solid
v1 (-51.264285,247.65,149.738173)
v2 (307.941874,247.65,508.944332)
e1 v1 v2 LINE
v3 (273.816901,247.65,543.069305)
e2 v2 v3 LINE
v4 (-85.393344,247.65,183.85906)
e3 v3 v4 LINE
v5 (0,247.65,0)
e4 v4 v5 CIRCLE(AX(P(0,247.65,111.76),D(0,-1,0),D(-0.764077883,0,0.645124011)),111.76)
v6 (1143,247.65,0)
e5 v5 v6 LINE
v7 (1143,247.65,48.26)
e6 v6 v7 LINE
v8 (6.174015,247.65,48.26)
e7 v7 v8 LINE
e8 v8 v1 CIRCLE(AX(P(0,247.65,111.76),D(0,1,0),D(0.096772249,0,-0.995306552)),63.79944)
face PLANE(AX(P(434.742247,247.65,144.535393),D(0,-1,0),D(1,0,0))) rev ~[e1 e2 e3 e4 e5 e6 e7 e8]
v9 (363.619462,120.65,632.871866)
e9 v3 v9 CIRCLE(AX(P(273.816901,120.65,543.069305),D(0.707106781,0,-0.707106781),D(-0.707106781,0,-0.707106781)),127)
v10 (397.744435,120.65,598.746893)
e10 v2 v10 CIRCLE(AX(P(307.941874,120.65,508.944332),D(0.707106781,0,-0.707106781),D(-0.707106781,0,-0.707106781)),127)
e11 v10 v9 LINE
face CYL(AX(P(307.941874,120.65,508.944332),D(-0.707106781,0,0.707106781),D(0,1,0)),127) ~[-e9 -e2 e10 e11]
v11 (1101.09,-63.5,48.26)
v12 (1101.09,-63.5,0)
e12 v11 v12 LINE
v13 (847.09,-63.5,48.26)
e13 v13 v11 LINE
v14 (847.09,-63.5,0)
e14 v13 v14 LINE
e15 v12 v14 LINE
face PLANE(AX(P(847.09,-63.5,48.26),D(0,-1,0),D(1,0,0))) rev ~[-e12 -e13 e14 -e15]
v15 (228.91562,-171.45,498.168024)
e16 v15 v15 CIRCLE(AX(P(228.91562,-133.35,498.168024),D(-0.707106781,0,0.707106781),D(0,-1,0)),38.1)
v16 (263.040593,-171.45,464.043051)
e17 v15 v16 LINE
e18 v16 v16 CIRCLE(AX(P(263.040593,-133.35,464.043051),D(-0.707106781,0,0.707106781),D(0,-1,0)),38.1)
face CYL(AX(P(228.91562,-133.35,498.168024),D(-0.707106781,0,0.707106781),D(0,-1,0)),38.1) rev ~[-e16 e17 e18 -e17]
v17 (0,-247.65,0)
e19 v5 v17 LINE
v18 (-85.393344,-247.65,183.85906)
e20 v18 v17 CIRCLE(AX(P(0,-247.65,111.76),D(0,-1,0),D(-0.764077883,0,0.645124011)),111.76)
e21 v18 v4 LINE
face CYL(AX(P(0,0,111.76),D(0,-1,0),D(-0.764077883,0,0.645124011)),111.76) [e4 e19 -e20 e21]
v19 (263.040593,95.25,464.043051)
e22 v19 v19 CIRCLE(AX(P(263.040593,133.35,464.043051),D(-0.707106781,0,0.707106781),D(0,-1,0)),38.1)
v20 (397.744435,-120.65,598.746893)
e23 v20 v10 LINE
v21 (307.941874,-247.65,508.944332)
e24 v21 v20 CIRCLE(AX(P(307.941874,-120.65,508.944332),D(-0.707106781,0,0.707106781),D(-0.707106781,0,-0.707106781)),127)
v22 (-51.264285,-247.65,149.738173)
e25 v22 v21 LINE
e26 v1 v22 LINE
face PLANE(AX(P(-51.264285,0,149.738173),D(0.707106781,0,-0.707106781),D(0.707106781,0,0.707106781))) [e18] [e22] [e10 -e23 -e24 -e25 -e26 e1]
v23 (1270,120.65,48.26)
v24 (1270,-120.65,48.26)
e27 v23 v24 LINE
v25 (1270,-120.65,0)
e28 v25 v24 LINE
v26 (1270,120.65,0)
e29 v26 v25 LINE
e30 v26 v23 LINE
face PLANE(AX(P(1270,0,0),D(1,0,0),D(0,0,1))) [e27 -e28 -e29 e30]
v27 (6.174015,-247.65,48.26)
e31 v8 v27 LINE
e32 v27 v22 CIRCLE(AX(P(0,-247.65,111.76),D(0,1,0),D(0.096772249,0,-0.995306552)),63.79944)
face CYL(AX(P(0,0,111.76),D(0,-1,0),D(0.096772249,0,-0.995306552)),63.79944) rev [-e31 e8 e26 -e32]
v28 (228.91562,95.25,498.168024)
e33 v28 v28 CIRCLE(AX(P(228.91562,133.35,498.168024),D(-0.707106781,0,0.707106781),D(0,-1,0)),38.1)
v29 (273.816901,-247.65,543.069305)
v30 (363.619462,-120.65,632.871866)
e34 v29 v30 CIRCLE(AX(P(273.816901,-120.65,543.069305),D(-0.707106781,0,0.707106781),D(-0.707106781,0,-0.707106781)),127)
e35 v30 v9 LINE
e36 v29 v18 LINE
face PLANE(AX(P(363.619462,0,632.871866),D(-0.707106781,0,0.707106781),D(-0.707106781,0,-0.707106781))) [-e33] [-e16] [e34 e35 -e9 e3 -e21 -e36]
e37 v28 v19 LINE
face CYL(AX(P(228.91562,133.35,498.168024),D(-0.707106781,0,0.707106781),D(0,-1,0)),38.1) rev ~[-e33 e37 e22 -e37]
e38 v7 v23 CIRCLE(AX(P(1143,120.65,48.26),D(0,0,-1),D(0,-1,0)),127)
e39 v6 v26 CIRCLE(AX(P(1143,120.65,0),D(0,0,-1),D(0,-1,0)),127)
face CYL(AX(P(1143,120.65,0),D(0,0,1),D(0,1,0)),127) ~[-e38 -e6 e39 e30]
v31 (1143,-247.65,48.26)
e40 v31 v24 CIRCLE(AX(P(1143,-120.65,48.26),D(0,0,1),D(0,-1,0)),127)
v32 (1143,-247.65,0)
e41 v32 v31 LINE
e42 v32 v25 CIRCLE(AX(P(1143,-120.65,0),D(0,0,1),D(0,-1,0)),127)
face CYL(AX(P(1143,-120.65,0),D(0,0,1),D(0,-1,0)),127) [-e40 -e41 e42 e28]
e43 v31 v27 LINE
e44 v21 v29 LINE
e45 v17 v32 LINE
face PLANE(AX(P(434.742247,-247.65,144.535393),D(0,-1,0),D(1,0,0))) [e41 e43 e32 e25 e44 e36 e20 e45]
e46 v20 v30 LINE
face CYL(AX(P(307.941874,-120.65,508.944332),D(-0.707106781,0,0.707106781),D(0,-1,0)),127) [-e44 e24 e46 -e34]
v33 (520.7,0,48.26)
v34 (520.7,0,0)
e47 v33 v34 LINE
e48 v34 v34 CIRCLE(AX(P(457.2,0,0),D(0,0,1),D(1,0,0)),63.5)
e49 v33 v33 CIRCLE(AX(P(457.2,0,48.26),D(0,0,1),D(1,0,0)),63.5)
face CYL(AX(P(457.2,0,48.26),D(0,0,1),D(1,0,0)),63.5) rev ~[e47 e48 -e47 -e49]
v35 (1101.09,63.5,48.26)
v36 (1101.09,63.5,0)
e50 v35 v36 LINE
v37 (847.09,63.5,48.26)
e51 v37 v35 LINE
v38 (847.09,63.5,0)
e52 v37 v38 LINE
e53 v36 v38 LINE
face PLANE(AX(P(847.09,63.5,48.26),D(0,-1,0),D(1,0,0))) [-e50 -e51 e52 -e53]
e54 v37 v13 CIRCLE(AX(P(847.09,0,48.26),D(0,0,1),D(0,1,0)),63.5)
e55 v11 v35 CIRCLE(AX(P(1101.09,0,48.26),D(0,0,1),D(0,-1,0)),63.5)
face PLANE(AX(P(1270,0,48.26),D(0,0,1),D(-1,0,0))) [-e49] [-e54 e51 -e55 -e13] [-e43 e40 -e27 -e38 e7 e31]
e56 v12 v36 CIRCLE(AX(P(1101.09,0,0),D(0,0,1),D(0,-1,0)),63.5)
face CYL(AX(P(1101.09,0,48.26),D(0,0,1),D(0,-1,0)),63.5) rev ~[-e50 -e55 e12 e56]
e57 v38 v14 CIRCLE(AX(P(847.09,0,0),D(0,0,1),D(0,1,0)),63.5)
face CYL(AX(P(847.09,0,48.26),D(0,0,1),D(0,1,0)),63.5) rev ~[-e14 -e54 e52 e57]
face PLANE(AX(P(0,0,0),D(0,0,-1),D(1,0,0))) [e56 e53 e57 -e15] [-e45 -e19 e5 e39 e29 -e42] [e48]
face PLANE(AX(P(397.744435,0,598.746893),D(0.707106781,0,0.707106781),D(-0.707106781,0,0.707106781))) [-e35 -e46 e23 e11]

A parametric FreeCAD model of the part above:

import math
import FreeCAD as App
import Part
import Sketcher
Q = App.Units.Quantity


def edges_at(feature, points):
    """Names of the edges that pass closest to the given points."""
    edges = feature.Shape.Edges
    near = lambda p: min(range(len(edges)), key=lambda i: edges[i].distToShape(Part.Vertex(*p))[0])
    return sorted({f"Edge{near(p) + 1}" for p in points})

doc = App.newDocument("Part")
params = doc.addObject("Spreadsheet::Sheet", "Params")
for row, (alias, value) in enumerate([
    ("sketch1_radius", "4.4 in"),
    ("sketch1_width", "50 in"),
    ("sketch1_length", "25 in"),
    ("sketch1_height", "1.9 in"),
    ("sketch1_length2", "1.9 in"),
    ("pad1_length", "19.5 in"),
    ("sketch2_diameter", "5 in"),
    ("sketch2_width", "10 in"),
    ("sketch3_diameter", "3 in"),
    ("pocket2_length", "8.6 in"),
    ("fillet_radius", "5 in"),
], start=1):
    params.set(f"A{row}", alias)
    params.set(f"B{row}", "=" + value)
    params.setAlias(f"B{row}", alias)

body = doc.addObject("PartDesign::Body", "Body")

sketch1 = body.newObject("Sketcher::SketchObject", "Sketch")
sketch1.AttachmentSupport = (doc.getObject("XZ_Plane"), [""])
sketch1.MapMode = "FlatFace"
sketch1.addGeometry([
    Part.ArcOfCircle(Part.Circle(App.Vector(0, 111.76, 0), App.Vector(0, 0, 1), 111.76), math.radians(139.825026), math.radians(270)),
    Part.LineSegment(App.Vector(0, 0, 0), App.Vector(1270, 0, 0)),
    Part.LineSegment(App.Vector(1270, 0, 0), App.Vector(1270, 48.26, 0)),
    Part.LineSegment(App.Vector(1270, 48.26, 0), App.Vector(6.174015, 48.26, 0)),
    Part.ArcOfCircle(Part.Circle(App.Vector(0, 111.76, 0), App.Vector(0, 0, 1), 63.79944), math.radians(143.467805), math.radians(275.553332)),
    Part.LineSegment(App.Vector(-51.264285, 149.738173, 0), App.Vector(397.744435, 598.746893, 0)),
    Part.LineSegment(App.Vector(397.744435, 598.746893, 0), App.Vector(363.619462, 632.871866, 0)),
    Part.LineSegment(App.Vector(363.619462, 632.871866, 0), App.Vector(-85.393344, 183.85906, 0)),
], False)
sketch1.addConstraint([
    Sketcher.Constraint("Coincident", 0, 2, 1, 1),
    Sketcher.Constraint("Coincident", 1, 2, 2, 1),
    Sketcher.Constraint("Coincident", 2, 2, 3, 1),
    Sketcher.Constraint("Coincident", 3, 2, 4, 2),
    Sketcher.Constraint("Coincident", 4, 1, 5, 1),
    Sketcher.Constraint("Coincident", 5, 2, 6, 1),
    Sketcher.Constraint("Coincident", 6, 2, 7, 1),
    Sketcher.Constraint("Coincident", 7, 2, 0, 1),
    Sketcher.Constraint("Horizontal", 1),
    Sketcher.Constraint("Vertical", 2),
    Sketcher.Constraint("Horizontal", 3),
    Sketcher.Constraint("Coincident", 0, 2, -1, 1),
    Sketcher.Constraint("Coincident", 4, 3, 0, 3),
    Sketcher.Constraint("PointOnObject", 0, 3, -2),
    Sketcher.Constraint("Radius", 0, Q("4.4 in")),
    Sketcher.Constraint("DistanceX", 1, 1, 1, 2, Q("50 in")),
    Sketcher.Constraint("Distance", 7, Q("25 in")),
    Sketcher.Constraint("DistanceY", 2, 1, 2, 2, Q("1.9 in")),
    Sketcher.Constraint("Distance", 6, Q("1.9 in")),
    Sketcher.Constraint("Radius", 4, Q("63.79944 mm")),
    Sketcher.Constraint("DistanceX", 4, 1, 3, 2, Q("57.4383 mm")),
    Sketcher.Constraint("Distance", 5, Q("634.994221 mm")),
    Sketcher.Constraint("DistanceX", -1, 1, 6, 2, Q("363.619462 mm")),
    Sketcher.Constraint("DistanceY", -1, 1, 7, 2, Q("183.85906 mm")),
])
sketch1.setExpression("Constraints[14]", "Params.sketch1_radius")
sketch1.setExpression("Constraints[15]", "Params.sketch1_width")
sketch1.setExpression("Constraints[16]", "Params.sketch1_length")
sketch1.setExpression("Constraints[17]", "Params.sketch1_height")
sketch1.setExpression("Constraints[18]", "Params.sketch1_length2")
pad1 = body.newObject("PartDesign::Pad", "Pad")
pad1.Profile = sketch1
pad1.setExpression("Length", "Params.pad1_length")
pad1.Midplane = True

sketch2 = body.newObject("Sketcher::SketchObject", "Sketch001")
sketch2.AttachmentSupport = (doc.getObject("XY_Plane"), [""])
sketch2.MapMode = "FlatFace"
sketch2.AttachmentOffset = App.Placement(App.Vector(0, 0, 1.9 * 25.4), App.Rotation())
sketch2.addGeometry([
    Part.Circle(App.Vector(457, 0, 0), App.Vector(0, 0, 1), 64),
    Part.LineSegment(App.Vector(847, -64, 0), App.Vector(1101, -64, 0)),
    Part.ArcOfCircle(Part.Circle(App.Vector(1101, 0, 0), App.Vector(0, 0, 1), 64), math.radians(-90), math.radians(90)),
    Part.LineSegment(App.Vector(1101, 64, 0), App.Vector(847, 64, 0)),
    Part.ArcOfCircle(Part.Circle(App.Vector(847, 0, 0), App.Vector(0, 0, 1), 64), math.radians(90), math.radians(270)),
], False)
sketch2.addConstraint([
    Sketcher.Constraint("Tangent", 1, 2, 2, 1),
    Sketcher.Constraint("Tangent", 2, 2, 3, 1),
    Sketcher.Constraint("Tangent", 3, 2, 4, 1),
    Sketcher.Constraint("Tangent", 4, 2, 1, 1),
    Sketcher.Constraint("Horizontal", 1),
    Sketcher.Constraint("Horizontal", 3),
    Sketcher.Constraint("Equal", 0, 2),
    Sketcher.Constraint("PointOnObject", 0, 3, -1),
    Sketcher.Constraint("PointOnObject", 2, 3, -1),
    Sketcher.Constraint("Diameter", 0, Q("5 in")),
    Sketcher.Constraint("DistanceX", 1, 1, 1, 2, Q("10 in")),
    Sketcher.Constraint("DistanceX", -1, 1, 0, 3, Q("18 in")),
    Sketcher.Constraint("DistanceX", -1, 1, 2, 3, Q("43.35 in")),
])
sketch2.setExpression("Constraints[9]", "Params.sketch2_diameter")
sketch2.setExpression("Constraints[10]", "Params.sketch2_width")
pocket1 = body.newObject("PartDesign::Pocket", "Pocket")
pocket1.Profile = sketch2
pocket1.Type = "ThroughAll"

sketch3 = body.newObject("Sketcher::SketchObject", "Sketch002")
sketch3.Placement = App.Placement(App.Vector(-134.626202, 0, 134.626202), App.Rotation(App.Vector(0, -1, 0), App.Vector(0.707106781, 0, 0.707106781), App.Vector(-0.707106781, 0, 0.707106781), "ZXY"))
sketch3.addGeometry([
    Part.Circle(App.Vector(-133, 514, 0), App.Vector(0, 0, 1), 38),
    Part.Circle(App.Vector(133, 514, 0), App.Vector(0, 0, 1), 38),
], False)
sketch3.addConstraint([
    Sketcher.Constraint("Equal", 0, 1),
    Sketcher.Constraint("Symmetric", 0, 3, 1, 3, -2),
    Sketcher.Constraint("Diameter", 0, Q("3 in")),
    Sketcher.Constraint("DistanceX", 0, 3, 1, 3, Q("10.5 in")),
    Sketcher.Constraint("DistanceY", -1, 1, 0, 3, Q("514.125775 mm")),
])
sketch3.setExpression("Constraints[2]", "Params.sketch3_diameter")
pocket2 = body.newObject("PartDesign::Pocket", "Pocket001")
pocket2.Profile = sketch3
pocket2.setExpression("Length", "Params.pocket2_length")
doc.recompute()

fillet = body.newObject("PartDesign::Fillet", "Fillet")
fillet.Base = (pocket2, edges_at(pocket2, [
    (380.682, -247.65, 615.809),
    (380.682, 247.65, 615.809),
    (1270, 247.65, 24.13),
    (1270, -247.65, 24.13),
]))
fillet.setExpression("Radius", "Params.fillet_radius")

doc.recompute()
